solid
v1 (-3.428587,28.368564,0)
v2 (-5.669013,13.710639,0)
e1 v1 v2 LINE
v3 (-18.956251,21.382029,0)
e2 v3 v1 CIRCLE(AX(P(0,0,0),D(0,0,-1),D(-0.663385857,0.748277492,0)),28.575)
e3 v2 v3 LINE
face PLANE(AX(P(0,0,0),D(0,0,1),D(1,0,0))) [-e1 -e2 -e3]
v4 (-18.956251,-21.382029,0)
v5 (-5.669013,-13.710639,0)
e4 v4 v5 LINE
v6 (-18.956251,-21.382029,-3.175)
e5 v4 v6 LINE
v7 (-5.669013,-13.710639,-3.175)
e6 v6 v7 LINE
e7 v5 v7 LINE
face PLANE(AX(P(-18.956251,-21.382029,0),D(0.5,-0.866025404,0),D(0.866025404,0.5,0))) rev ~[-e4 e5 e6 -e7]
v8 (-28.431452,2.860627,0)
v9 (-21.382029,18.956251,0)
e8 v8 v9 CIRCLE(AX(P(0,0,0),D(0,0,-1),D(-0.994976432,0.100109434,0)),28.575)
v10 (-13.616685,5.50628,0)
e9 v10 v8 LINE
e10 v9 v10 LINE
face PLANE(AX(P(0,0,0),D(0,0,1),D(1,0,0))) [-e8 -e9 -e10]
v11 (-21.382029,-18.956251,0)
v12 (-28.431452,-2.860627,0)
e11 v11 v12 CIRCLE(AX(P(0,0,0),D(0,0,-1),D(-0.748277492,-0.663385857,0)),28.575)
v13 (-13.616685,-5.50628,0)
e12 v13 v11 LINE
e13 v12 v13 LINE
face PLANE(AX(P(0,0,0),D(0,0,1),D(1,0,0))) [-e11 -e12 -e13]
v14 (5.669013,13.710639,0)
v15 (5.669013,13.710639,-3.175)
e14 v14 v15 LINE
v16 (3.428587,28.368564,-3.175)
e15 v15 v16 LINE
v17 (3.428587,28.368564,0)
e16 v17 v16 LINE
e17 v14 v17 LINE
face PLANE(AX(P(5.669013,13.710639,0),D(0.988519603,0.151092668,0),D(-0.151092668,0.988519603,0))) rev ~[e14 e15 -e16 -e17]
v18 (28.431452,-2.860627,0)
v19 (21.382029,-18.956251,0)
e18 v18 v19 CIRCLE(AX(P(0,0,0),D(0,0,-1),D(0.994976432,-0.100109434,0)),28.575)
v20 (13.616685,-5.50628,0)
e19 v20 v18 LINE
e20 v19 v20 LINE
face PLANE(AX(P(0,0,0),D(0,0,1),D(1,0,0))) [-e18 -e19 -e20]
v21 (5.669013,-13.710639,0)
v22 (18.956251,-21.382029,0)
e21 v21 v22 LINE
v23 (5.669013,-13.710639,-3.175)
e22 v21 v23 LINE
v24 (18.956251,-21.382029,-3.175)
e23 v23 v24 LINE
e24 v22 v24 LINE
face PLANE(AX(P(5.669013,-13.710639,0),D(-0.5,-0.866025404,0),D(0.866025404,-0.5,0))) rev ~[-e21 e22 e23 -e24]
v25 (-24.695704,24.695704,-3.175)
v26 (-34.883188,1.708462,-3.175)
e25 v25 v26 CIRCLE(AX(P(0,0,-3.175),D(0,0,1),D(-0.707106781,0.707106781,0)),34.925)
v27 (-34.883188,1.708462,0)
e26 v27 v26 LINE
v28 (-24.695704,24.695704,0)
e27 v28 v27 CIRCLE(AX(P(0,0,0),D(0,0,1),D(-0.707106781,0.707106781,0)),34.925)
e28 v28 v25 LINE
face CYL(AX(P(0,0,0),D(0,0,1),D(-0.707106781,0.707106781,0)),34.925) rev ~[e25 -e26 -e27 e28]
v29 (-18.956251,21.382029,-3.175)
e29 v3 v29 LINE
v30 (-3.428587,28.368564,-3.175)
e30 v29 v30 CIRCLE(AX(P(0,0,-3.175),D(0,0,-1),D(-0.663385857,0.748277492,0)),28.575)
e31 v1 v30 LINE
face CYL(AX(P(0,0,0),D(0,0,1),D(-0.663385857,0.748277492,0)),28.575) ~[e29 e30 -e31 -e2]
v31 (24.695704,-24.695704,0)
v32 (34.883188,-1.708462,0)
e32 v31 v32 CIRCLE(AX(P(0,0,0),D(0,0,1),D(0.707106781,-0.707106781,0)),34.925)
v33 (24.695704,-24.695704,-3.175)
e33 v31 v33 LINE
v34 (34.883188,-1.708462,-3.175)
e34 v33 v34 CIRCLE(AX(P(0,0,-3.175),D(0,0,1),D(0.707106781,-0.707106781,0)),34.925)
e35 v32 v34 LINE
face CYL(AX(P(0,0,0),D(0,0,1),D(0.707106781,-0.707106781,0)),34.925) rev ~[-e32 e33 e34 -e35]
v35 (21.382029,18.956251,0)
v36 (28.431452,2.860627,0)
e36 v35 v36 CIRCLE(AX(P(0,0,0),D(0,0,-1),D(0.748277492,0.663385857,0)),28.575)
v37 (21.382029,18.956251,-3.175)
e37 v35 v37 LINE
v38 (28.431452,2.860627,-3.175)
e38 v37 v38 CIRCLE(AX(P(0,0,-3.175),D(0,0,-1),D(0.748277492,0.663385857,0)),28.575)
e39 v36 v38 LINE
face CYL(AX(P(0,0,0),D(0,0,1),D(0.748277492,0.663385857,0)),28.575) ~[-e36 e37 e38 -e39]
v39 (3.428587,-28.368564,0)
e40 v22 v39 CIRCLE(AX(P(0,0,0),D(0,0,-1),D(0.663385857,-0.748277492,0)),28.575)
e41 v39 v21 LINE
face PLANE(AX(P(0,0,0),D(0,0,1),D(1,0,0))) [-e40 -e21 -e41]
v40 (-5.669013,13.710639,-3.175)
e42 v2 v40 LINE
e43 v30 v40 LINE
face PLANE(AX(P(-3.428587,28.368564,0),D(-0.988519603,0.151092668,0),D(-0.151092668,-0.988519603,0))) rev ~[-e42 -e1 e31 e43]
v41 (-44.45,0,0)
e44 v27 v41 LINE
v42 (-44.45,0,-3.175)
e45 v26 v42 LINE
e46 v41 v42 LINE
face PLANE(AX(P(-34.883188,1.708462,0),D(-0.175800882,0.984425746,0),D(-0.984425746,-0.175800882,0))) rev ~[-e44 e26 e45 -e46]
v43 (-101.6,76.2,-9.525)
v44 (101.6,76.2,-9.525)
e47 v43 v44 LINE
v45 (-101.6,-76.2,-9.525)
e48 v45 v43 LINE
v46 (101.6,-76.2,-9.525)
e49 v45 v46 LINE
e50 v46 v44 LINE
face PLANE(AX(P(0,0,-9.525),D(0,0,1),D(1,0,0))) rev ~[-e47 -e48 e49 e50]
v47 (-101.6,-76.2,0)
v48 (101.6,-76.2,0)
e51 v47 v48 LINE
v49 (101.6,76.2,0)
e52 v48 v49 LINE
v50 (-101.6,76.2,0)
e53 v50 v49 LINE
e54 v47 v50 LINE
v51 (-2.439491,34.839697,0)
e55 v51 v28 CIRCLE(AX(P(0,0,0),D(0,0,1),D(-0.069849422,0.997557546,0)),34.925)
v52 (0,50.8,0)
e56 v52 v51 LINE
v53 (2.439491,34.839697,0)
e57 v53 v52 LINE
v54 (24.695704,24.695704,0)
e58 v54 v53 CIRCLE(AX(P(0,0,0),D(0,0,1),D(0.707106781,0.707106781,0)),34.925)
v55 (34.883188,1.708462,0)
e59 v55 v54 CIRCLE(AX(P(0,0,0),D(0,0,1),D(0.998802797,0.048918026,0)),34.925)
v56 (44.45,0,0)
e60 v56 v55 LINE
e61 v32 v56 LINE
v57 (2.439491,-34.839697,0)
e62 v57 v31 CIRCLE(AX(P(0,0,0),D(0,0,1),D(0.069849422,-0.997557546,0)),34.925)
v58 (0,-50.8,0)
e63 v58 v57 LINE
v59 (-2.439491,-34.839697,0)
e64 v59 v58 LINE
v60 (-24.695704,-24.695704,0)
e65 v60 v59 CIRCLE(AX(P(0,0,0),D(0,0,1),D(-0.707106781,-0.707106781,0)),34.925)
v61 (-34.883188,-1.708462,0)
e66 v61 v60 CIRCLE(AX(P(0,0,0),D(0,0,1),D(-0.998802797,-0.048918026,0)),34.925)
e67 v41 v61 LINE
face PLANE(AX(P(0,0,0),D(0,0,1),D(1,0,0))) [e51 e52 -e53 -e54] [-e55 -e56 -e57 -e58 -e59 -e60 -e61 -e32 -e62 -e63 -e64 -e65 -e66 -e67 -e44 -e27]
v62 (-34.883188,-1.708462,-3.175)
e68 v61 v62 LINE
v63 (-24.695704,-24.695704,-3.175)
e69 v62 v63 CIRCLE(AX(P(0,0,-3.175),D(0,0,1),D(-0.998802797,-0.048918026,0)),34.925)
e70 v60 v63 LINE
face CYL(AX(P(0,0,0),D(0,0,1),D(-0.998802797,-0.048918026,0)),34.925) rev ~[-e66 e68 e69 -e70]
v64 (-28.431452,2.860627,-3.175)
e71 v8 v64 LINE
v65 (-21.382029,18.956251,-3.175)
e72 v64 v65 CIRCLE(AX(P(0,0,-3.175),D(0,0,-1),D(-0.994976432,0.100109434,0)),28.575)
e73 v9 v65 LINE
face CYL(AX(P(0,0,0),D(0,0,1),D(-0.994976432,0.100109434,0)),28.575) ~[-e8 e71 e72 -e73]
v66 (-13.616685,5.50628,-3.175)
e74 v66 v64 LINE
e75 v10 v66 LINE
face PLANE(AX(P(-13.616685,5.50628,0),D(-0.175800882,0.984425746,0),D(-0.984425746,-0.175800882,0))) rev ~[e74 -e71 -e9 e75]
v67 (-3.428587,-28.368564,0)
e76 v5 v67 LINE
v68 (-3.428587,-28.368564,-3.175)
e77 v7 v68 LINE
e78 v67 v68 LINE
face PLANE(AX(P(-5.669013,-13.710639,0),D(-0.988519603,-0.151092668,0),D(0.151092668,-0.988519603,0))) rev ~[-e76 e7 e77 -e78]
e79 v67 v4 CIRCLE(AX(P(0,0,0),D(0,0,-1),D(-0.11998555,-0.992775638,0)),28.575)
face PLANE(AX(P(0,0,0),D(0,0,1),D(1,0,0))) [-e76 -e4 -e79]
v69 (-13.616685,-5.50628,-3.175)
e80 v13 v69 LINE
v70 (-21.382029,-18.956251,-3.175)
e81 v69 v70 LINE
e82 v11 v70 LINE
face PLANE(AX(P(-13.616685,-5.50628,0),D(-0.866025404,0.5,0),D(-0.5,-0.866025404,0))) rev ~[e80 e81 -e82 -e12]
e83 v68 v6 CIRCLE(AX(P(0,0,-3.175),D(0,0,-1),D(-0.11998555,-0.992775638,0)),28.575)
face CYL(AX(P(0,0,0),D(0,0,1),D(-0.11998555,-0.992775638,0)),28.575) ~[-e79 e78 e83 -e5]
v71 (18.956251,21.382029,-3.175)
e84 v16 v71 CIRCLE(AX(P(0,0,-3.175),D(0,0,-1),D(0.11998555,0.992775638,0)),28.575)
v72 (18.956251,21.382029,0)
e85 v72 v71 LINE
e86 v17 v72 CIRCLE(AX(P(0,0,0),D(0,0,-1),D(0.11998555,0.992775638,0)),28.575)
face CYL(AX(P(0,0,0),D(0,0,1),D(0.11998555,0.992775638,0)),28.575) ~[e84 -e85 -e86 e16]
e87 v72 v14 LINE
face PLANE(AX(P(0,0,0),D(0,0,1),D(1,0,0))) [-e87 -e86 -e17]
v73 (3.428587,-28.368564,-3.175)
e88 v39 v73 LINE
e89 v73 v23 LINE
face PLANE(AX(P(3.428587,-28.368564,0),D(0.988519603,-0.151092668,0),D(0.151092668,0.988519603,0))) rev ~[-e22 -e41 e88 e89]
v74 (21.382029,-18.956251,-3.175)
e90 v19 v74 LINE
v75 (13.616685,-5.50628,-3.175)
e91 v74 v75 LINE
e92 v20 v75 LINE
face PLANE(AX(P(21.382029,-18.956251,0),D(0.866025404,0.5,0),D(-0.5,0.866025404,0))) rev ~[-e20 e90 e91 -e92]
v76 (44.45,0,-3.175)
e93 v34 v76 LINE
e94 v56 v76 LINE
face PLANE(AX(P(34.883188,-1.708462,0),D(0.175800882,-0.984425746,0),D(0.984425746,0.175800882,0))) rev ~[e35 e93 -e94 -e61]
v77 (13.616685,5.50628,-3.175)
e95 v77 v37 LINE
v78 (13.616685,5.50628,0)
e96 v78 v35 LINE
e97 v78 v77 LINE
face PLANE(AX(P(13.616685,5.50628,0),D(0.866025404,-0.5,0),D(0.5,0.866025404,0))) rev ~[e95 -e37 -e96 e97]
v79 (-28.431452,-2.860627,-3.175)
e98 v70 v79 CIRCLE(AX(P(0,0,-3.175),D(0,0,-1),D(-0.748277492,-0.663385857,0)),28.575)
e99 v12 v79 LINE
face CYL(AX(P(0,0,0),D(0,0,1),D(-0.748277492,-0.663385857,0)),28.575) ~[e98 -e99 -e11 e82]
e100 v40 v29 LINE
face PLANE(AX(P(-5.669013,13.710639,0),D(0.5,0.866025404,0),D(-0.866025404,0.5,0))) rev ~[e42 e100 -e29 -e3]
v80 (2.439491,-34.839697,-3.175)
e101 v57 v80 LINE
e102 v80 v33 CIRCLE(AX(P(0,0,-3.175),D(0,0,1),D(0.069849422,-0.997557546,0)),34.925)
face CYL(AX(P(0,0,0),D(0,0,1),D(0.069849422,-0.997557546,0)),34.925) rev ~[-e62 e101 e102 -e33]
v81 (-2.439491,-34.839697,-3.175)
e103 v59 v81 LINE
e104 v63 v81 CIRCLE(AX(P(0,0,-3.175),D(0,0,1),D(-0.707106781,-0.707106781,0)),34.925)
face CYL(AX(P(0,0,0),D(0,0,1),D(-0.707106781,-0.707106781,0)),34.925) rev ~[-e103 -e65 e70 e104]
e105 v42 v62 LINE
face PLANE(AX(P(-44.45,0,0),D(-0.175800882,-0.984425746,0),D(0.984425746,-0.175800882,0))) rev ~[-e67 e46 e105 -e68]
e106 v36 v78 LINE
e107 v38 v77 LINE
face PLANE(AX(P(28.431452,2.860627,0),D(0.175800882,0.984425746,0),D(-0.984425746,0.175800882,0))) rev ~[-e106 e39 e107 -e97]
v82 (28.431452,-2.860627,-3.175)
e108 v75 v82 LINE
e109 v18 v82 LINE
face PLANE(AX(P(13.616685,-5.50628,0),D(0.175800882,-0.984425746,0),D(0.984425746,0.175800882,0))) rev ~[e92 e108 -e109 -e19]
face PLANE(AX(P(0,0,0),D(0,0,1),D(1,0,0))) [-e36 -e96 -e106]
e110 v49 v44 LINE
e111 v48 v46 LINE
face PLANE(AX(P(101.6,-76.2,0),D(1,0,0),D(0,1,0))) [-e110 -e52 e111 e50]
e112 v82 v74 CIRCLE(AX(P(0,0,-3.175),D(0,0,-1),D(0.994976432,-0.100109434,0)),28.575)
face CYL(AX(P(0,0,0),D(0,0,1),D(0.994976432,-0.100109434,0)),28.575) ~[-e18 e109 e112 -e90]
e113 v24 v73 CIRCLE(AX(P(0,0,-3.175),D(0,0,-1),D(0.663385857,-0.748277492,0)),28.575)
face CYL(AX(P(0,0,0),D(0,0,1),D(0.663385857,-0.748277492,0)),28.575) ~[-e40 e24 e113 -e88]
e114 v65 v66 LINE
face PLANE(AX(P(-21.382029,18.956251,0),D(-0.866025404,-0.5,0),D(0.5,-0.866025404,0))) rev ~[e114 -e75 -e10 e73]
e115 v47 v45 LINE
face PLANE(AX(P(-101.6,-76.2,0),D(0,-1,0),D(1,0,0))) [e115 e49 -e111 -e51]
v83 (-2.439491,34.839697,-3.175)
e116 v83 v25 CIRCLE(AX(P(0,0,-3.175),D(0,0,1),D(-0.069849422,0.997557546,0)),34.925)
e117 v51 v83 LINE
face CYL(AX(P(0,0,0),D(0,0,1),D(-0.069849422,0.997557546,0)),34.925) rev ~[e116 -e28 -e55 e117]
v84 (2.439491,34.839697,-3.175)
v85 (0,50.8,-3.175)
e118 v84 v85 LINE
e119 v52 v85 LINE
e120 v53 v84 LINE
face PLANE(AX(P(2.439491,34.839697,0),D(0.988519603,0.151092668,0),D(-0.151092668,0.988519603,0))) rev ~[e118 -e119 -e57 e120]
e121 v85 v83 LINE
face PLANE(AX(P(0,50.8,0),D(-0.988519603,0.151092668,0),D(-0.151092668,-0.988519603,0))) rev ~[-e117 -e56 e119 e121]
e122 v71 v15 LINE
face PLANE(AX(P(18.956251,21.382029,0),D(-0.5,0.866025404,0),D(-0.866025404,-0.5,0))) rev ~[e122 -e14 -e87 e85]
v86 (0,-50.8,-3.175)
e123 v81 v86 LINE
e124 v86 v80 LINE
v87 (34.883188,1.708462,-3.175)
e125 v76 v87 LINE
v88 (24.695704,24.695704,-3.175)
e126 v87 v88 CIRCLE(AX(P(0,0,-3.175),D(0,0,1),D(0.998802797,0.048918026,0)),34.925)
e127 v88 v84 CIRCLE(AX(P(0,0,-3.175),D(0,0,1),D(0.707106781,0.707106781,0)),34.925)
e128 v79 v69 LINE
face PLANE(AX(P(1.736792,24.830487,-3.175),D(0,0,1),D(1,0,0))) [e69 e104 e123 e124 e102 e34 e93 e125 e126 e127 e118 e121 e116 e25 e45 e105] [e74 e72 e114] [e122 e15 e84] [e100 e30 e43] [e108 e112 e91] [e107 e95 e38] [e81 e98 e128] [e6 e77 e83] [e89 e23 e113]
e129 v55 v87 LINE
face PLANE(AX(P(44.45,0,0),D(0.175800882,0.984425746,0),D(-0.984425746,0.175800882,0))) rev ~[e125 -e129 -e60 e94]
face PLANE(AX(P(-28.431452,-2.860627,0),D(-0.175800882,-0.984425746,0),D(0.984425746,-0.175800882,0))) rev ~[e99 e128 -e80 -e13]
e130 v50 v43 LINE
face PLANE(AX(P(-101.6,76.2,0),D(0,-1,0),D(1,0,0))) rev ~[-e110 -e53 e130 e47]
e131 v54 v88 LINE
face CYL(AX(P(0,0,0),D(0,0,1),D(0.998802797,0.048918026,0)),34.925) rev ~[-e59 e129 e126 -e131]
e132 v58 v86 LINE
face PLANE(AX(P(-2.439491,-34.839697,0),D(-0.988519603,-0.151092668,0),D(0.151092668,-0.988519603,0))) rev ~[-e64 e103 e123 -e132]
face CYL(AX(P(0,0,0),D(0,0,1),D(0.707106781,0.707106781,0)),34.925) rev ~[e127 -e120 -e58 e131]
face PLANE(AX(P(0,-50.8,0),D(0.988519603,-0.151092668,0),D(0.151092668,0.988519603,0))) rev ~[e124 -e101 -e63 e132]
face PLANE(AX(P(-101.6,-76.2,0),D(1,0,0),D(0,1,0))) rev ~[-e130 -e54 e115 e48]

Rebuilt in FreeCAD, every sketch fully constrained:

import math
import FreeCAD as App
import Part
import Sketcher
from FreeCAD import Vector
Q = App.Units.Quantity

doc = App.newDocument("Part")
body = doc.addObject("PartDesign::Body", "Body")

sketch1 = body.newObject("Sketcher::SketchObject", "Sketch")
sketch1.AttachmentSupport = (doc.getObject("XY_Plane"), [""])
sketch1.MapMode = "FlatFace"
sketch1.addGeometry([
    Part.LineSegment(Vector(-102, 76, 0), Vector(-102, -76, 0)),
    Part.LineSegment(Vector(-102, -76, 0), Vector(102, -76, 0)),
    Part.LineSegment(Vector(102, -76, 0), Vector(102, 76, 0)),
    Part.LineSegment(Vector(102, 76, 0), Vector(-102, 76, 0)),
], False)
sketch1.addConstraint([
    Sketcher.Constraint("Coincident", 0, 2, 1, 1),
    Sketcher.Constraint("Coincident", 1, 2, 2, 1),
    Sketcher.Constraint("Coincident", 2, 2, 3, 1),
    Sketcher.Constraint("Coincident", 3, 2, 0, 1),
    Sketcher.Constraint("Vertical", 0),
    Sketcher.Constraint("Horizontal", 1),
    Sketcher.Constraint("Vertical", 2),
    Sketcher.Constraint("Horizontal", 3),
    Sketcher.Constraint("Symmetric", 0, 2, 2, 2, -1, 1),
    Sketcher.Constraint("DistanceX", 1, 1, 1, 2, Q("8 in")),
    Sketcher.Constraint("DistanceY", 0, 2, 0, 1, Q("6 in")),
])
pad1 = body.newObject("PartDesign::Pad", "Pad")
pad1.Profile = sketch1
pad1.Length = Q("0.375 in")
pad1.Reversed = True

sketch2 = body.newObject("Sketcher::SketchObject", "Sketch001")
sketch2.AttachmentSupport = (doc.getObject("XY_Plane"), [""])
sketch2.MapMode = "FlatFace"
sketch2.addGeometry([
    Part.ArcOfCircle(Part.Circle(Vector(0, 0, 0), Vector(0, 0, 1), 35), math.radians(45), math.radians(86)),
    Part.LineSegment(Vector(2, 35, 0), Vector(0, 51, 0)),
    Part.LineSegment(Vector(0, 51, 0), Vector(-2, 35, 0)),
    Part.ArcOfCircle(Part.Circle(Vector(0, 0, 0), Vector(0, 0, 1), 35), math.radians(94), math.radians(135)),
    Part.ArcOfCircle(Part.Circle(Vector(0, 0, 0), Vector(0, 0, 1), 35), math.radians(135), math.radians(177)),
    Part.LineSegment(Vector(-35, 2, 0), Vector(-44, 0, 0)),
    Part.LineSegment(Vector(-44, 0, 0), Vector(-35, -2, 0)),
    Part.ArcOfCircle(Part.Circle(Vector(0, 0, 0), Vector(0, 0, 1), 35), math.radians(-177), math.radians(-135)),
    Part.ArcOfCircle(Part.Circle(Vector(0, 0, 0), Vector(0, 0, 1), 35), math.radians(-135), math.radians(-94)),
    Part.LineSegment(Vector(-2, -35, 0), Vector(0, -51, 0)),
    Part.LineSegment(Vector(0, -51, 0), Vector(2, -35, 0)),
    Part.ArcOfCircle(Part.Circle(Vector(0, 0, 0), Vector(0, 0, 1), 35), math.radians(-86), math.radians(-45)),
    Part.ArcOfCircle(Part.Circle(Vector(0, 0, 0), Vector(0, 0, 1), 35), math.radians(-45), math.radians(-3)),
    Part.LineSegment(Vector(35, -2, 0), Vector(44, 0, 0)),
    Part.LineSegment(Vector(44, 0, 0), Vector(35, 2, 0)),
    Part.ArcOfCircle(Part.Circle(Vector(0, 0, 0), Vector(0, 0, 1), 35), math.radians(3), math.radians(45)),
    Part.LineSegment(Vector(21, -19, 0), Vector(14, -6, 0)),
    Part.LineSegment(Vector(14, -6, 0), Vector(28, -3, 0)),
    Part.ArcOfCircle(Part.Circle(Vector(0, 0, 0), Vector(0, 0, 1), 29), math.radians(-42), math.radians(-6)),
    Part.LineSegment(Vector(-28, -3, 0), Vector(-14, -6, 0)),
    Part.LineSegment(Vector(-14, -6, 0), Vector(-21, -19, 0)),
    Part.ArcOfCircle(Part.Circle(Vector(0, 0, 0), Vector(0, 0, 1), 29), math.radians(-174), math.radians(-138)),
    Part.LineSegment(Vector(3, -28, 0), Vector(6, -14, 0)),
    Part.LineSegment(Vector(6, -14, 0), Vector(19, -21, 0)),
    Part.ArcOfCircle(Part.Circle(Vector(0, 0, 0), Vector(0, 0, 1), 29), math.radians(-83), math.radians(-48)),
    Part.LineSegment(Vector(-19, -21, 0), Vector(-6, -14, 0)),
    Part.LineSegment(Vector(-6, -14, 0), Vector(-3, -28, 0)),
    Part.ArcOfCircle(Part.Circle(Vector(0, 0, 0), Vector(0, 0, 1), 29), math.radians(-132), math.radians(-97)),
    Part.LineSegment(Vector(28, 3, 0), Vector(14, 6, 0)),
    Part.LineSegment(Vector(14, 6, 0), Vector(21, 19, 0)),
    Part.ArcOfCircle(Part.Circle(Vector(0, 0, 0), Vector(0, 0, 1), 29), math.radians(6), math.radians(42)),
    Part.LineSegment(Vector(-21, 19, 0), Vector(-14, 6, 0)),
    Part.LineSegment(Vector(-14, 6, 0), Vector(-28, 3, 0)),
    Part.ArcOfCircle(Part.Circle(Vector(0, 0, 0), Vector(0, 0, 1), 29), math.radians(138), math.radians(174)),
    Part.ArcOfCircle(Part.Circle(Vector(0, 0, 0), Vector(0, 0, 1), 29), math.radians(97), math.radians(132)),
    Part.LineSegment(Vector(-3, 28, 0), Vector(-6, 14, 0)),
    Part.LineSegment(Vector(-6, 14, 0), Vector(-19, 21, 0)),
    Part.ArcOfCircle(Part.Circle(Vector(0, 0, 0), Vector(0, 0, 1), 29), math.radians(48), math.radians(83)),
    Part.LineSegment(Vector(19, 21, 0), Vector(6, 14, 0)),
    Part.LineSegment(Vector(6, 14, 0), Vector(3, 28, 0)),
], False)
sketch2.addConstraint([
    Sketcher.Constraint("Coincident", 0, 2, 1, 1),
    Sketcher.Constraint("Coincident", 1, 2, 2, 1),
    Sketcher.Constraint("Coincident", 2, 2, 3, 1),
    Sketcher.Constraint("Tangent", 3, 2, 4, 1),
    Sketcher.Constraint("Coincident", 4, 2, 5, 1),
    Sketcher.Constraint("Coincident", 5, 2, 6, 1),
    Sketcher.Constraint("Coincident", 6, 2, 7, 1),
    Sketcher.Constraint("Tangent", 7, 2, 8, 1),
    Sketcher.Constraint("Coincident", 8, 2, 9, 1),
    Sketcher.Constraint("Coincident", 9, 2, 10, 1),
    Sketcher.Constraint("Coincident", 10, 2, 11, 1),
    Sketcher.Constraint("Tangent", 11, 2, 12, 1),
    Sketcher.Constraint("Coincident", 12, 2, 13, 1),
    Sketcher.Constraint("Coincident", 13, 2, 14, 1),
    Sketcher.Constraint("Coincident", 14, 2, 15, 1),
    Sketcher.Constraint("Tangent", 15, 2, 0, 1),
    Sketcher.Constraint("Coincident", 16, 2, 17, 1),
    Sketcher.Constraint("Coincident", 17, 2, 18, 2),
    Sketcher.Constraint("Coincident", 18, 1, 16, 1),
    Sketcher.Constraint("Coincident", 19, 2, 20, 1),
    Sketcher.Constraint("Coincident", 20, 2, 21, 2),
    Sketcher.Constraint("Coincident", 21, 1, 19, 1),
    Sketcher.Constraint("Coincident", 22, 2, 23, 1),
    Sketcher.Constraint("Coincident", 23, 2, 24, 2),
    Sketcher.Constraint("Coincident", 24, 1, 22, 1),
    Sketcher.Constraint("Coincident", 25, 2, 26, 1),
    Sketcher.Constraint("Coincident", 26, 2, 27, 2),
    Sketcher.Constraint("Coincident", 27, 1, 25, 1),
    Sketcher.Constraint("Coincident", 28, 2, 29, 1),
    Sketcher.Constraint("Coincident", 29, 2, 30, 2),
    Sketcher.Constraint("Coincident", 30, 1, 28, 1),
    Sketcher.Constraint("Coincident", 31, 2, 32, 1),
    Sketcher.Constraint("Coincident", 32, 2, 33, 2),
    Sketcher.Constraint("Coincident", 33, 1, 31, 1),
    Sketcher.Constraint("Coincident", 34, 1, 35, 1),
    Sketcher.Constraint("Coincident", 35, 2, 36, 1),
    Sketcher.Constraint("Coincident", 36, 2, 34, 2),
    Sketcher.Constraint("Coincident", 37, 1, 38, 1),
    Sketcher.Constraint("Coincident", 38, 2, 39, 1),
    Sketcher.Constraint("Coincident", 39, 2, 37, 2),
    Sketcher.Constraint("Coincident", 0, 3, -1, 1),
    Sketcher.Constraint("Coincident", 3, 3, -1, 1),
    Sketcher.Constraint("Coincident", 7, 3, -1, 1),
    Sketcher.Constraint("Coincident", 11, 3, -1, 1),
    Sketcher.Constraint("Coincident", 18, 3, -1, 1),
    Sketcher.Constraint("Coincident", 21, 3, -1, 1),
    Sketcher.Constraint("Coincident", 24, 3, -1, 1),
    Sketcher.Constraint("Coincident", 27, 3, -1, 1),
    Sketcher.Constraint("Coincident", 30, 3, -1, 1),
    Sketcher.Constraint("Coincident", 33, 3, -1, 1),
    Sketcher.Constraint("Coincident", 34, 3, -1, 1),
    Sketcher.Constraint("Coincident", 37, 3, -1, 1),
    Sketcher.Constraint("Equal", 0, 3),
    Sketcher.Constraint("Equal", 3, 4),
    Sketcher.Constraint("Equal", 4, 7),
    Sketcher.Constraint("Equal", 7, 8),
    Sketcher.Constraint("Equal", 8, 11),
    Sketcher.Constraint("Equal", 11, 12),
    Sketcher.Constraint("Equal", 12, 15),
    Sketcher.Constraint("Equal", 18, 21),
    Sketcher.Constraint("Equal", 21, 24),
    Sketcher.Constraint("Equal", 24, 27),
    Sketcher.Constraint("Equal", 27, 30),
    Sketcher.Constraint("Equal", 30, 33),
    Sketcher.Constraint("Equal", 33, 34),
    Sketcher.Constraint("Equal", 34, 37),
    Sketcher.Constraint("Symmetric", 1, 2, 9, 2, -1, 1),
    Sketcher.Constraint("Symmetric", 5, 2, 13, 2, -1, 1),
    Sketcher.Constraint("Symmetric", 19, 2, 28, 2, -1, 1),
    Sketcher.Constraint("Symmetric", 16, 2, 31, 2, -1, 1),
    Sketcher.Constraint("Symmetric", 22, 2, 35, 2, -1, 1),
    Sketcher.Constraint("Symmetric", 25, 2, 38, 2, -1, 1),
    Sketcher.Constraint("Symmetric", 16, 2, 19, 2, -2),
    Sketcher.Constraint("Symmetric", 22, 2, 25, 2, -2),
    Sketcher.Constraint("PointOnObject", 1, 2, -2),
    Sketcher.Constraint("PointOnObject", 5, 2, -1),
    Sketcher.Constraint("Parallel", 1, 9),
    Sketcher.Constraint("Parallel", 2, 10),
    Sketcher.Constraint("Parallel", 5, 13),
    Sketcher.Constraint("Parallel", 6, 14),
    Sketcher.Constraint("Parallel", 13, 17),
    Sketcher.Constraint("Parallel", 14, 19),
    Sketcher.Constraint("Parallel", 10, 22),
    Sketcher.Constraint("Perpendicular", 20, 23),
    Sketcher.Constraint("Perpendicular", 16, 25),
    Sketcher.Constraint("Parallel", 9, 26),
    Sketcher.Constraint("Parallel", 19, 28),
    Sketcher.Constraint("Perpendicular", 23, 29),
    Sketcher.Constraint("Perpendicular", 25, 31),
    Sketcher.Constraint("Parallel", 17, 32),
    Sketcher.Constraint("Parallel", 22, 35),
    Sketcher.Constraint("Perpendicular", 29, 36),
    Sketcher.Constraint("Perpendicular", 31, 38),
    Sketcher.Constraint("Parallel", 26, 39),
    Sketcher.Constraint("Horizontal", 0, 2, 2, 2),
    Sketcher.Constraint("Horizontal", 7, 2, 11, 2),
    Sketcher.Constraint("Horizontal", 6, 2, 12, 2),
    Sketcher.Constraint("Horizontal", 3, 2, 15, 2),
    Sketcher.Constraint("Horizontal", 18, 1, 20, 2),
    Sketcher.Constraint("Vertical", 3, 2, 7, 2),
    Sketcher.Constraint("DistanceY", -1, 1, 1, 2, Q("2 in")),
    Sketcher.Constraint("Angle", 16, Q("120 deg")),
    Sketcher.Constraint("Radius", 0, Q("1.375 in")),
    Sketcher.Constraint("Radius", 18, Q("1.125 in")),
    Sketcher.Constraint("DistanceX", 5, 2, -1, 1, Q("1.75 in")),
    Sketcher.Constraint("DistanceX", 23, 2, 17, 2, Q("9.475201 mm")),
    Sketcher.Constraint("DistanceX", 26, 2, 22, 2, Q("9.0976 mm")),
    Sketcher.Constraint("Distance", 1, Q("16.145661 mm")),
    Sketcher.Constraint("Distance", 16, Q("15.530688 mm")),
    Sketcher.Constraint("Distance", 22, Q("14.828158 mm")),
    Sketcher.Constraint("DistanceY", 16, 2, -1, 1, Q("5.50628 mm")),
    Sketcher.Constraint("DistanceY", 3, 2, 34, 1, Q("3.67286 mm")),
])
pocket1 = body.newObject("PartDesign::Pocket", "Pocket")
pocket1.Profile = sketch2
pocket1.Length = Q("0.125 in")

doc.recompute()
